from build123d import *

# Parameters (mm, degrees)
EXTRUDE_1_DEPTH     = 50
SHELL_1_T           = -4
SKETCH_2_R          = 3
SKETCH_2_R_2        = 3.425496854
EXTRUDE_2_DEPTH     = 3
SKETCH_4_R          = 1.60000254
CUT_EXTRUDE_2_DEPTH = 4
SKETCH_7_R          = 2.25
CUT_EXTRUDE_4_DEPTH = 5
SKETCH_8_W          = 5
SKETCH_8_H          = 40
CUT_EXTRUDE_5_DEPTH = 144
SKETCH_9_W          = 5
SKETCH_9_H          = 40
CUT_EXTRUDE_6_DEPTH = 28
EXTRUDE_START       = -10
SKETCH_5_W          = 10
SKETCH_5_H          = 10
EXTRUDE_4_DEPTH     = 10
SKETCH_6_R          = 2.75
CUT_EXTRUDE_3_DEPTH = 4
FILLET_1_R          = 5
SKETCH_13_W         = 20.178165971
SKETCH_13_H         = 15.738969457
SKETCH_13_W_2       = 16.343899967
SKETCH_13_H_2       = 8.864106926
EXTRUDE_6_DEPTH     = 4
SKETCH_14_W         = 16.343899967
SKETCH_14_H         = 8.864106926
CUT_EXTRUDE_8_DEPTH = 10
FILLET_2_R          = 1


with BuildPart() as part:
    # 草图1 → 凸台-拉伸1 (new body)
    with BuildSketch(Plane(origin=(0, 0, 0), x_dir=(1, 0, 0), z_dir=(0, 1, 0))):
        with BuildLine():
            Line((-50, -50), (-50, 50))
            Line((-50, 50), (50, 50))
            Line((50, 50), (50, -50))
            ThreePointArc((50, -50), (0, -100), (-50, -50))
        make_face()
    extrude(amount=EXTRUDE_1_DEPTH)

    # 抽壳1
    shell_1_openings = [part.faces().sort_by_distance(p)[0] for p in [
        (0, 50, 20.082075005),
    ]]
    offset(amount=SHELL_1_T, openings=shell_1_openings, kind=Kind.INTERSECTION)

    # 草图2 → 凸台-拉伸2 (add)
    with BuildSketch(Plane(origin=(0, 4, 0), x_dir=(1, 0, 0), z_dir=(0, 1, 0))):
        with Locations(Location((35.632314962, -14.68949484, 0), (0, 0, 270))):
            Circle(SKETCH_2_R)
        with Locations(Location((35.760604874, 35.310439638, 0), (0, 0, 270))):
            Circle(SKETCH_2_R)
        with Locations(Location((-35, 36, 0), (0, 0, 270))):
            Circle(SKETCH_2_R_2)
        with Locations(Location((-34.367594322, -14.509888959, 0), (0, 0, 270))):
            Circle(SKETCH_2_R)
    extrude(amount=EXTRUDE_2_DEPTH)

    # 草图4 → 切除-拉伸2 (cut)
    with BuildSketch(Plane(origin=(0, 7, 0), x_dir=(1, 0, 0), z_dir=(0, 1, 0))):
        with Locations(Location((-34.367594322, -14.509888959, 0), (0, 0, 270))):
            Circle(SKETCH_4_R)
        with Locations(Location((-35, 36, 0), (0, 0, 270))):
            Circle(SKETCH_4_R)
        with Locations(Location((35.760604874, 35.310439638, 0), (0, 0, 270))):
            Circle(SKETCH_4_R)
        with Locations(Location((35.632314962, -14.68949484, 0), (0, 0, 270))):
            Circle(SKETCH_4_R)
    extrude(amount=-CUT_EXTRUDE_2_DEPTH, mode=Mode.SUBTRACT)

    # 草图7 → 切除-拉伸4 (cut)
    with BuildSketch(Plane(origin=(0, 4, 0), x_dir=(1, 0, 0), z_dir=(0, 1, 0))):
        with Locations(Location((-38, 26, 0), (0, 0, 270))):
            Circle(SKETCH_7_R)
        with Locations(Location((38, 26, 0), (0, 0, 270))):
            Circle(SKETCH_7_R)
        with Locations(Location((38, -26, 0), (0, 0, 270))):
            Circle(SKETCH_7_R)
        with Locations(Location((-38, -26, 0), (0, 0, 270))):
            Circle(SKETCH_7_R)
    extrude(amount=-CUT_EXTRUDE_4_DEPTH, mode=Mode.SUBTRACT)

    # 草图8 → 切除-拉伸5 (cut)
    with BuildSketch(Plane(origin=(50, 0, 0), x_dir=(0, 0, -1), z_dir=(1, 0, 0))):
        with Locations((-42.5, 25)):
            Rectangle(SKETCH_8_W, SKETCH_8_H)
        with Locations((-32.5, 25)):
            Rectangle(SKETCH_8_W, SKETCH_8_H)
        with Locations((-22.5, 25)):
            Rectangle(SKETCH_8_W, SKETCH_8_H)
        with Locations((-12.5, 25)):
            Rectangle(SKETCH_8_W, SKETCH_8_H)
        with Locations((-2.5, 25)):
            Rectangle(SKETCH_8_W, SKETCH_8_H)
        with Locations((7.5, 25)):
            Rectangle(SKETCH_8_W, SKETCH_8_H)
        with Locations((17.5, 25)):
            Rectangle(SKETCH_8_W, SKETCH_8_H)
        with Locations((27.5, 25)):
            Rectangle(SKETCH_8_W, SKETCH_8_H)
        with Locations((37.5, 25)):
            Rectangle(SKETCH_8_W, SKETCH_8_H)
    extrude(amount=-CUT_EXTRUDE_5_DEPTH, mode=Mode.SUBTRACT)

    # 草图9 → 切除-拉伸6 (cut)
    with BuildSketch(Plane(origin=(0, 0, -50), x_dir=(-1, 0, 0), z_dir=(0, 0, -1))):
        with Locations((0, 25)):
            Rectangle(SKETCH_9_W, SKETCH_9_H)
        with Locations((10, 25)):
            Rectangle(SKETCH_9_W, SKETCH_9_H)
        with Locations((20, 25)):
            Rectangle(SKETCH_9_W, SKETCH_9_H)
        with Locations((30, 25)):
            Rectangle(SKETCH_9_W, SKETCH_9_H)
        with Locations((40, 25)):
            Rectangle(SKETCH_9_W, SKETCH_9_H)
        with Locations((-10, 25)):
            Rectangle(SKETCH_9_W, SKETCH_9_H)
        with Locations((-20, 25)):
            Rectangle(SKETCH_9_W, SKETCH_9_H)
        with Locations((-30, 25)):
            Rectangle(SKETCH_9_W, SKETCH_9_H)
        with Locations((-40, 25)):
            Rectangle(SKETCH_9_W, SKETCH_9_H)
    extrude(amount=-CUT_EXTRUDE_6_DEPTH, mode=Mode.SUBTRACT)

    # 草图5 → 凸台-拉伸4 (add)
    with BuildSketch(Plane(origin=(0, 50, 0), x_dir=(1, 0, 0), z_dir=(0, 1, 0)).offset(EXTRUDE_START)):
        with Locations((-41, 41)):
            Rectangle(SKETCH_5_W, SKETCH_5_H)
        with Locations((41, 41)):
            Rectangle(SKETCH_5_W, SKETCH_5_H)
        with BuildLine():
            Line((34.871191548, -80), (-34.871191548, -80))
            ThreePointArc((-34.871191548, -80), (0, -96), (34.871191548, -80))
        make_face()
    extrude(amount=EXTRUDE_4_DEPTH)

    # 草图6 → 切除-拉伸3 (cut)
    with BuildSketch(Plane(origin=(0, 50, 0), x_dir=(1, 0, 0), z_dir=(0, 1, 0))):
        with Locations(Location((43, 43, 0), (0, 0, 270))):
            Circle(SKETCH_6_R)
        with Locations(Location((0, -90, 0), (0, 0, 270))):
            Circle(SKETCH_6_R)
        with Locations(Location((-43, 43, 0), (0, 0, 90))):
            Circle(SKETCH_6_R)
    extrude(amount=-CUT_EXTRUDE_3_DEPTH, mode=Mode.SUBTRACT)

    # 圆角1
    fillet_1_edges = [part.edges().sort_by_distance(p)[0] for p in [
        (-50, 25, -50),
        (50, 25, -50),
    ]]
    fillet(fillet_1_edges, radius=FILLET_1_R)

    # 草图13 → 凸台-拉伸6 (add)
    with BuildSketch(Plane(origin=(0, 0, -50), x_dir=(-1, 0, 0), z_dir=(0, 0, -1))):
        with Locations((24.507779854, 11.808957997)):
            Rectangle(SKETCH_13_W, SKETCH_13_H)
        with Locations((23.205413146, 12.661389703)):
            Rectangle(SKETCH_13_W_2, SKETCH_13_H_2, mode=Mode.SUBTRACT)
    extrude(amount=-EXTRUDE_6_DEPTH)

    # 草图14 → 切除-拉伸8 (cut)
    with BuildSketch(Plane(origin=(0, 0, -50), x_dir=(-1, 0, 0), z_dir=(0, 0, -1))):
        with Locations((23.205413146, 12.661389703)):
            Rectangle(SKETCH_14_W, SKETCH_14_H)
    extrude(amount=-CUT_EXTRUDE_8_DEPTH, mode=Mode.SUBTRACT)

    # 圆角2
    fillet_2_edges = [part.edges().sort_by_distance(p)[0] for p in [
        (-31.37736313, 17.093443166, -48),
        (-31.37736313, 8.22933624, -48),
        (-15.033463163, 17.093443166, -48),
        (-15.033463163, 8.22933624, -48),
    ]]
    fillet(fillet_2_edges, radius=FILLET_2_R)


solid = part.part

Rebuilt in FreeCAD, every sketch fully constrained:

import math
import FreeCAD as App
import Part
import Sketcher
from FreeCAD import Vector
Q = App.Units.Quantity


def edges_at(feature, points):
    """Names of the edges that pass closest to the given points."""
    edges = feature.Shape.Edges
    near = lambda p: min(range(len(edges)), key=lambda i: edges[i].distToShape(Part.Vertex(*p))[0])
    return sorted({f"Edge{near(p) + 1}" for p in points})


def faces_at(feature, points):
    """Names of the faces that lie closest to the given points."""
    faces = feature.Shape.Faces
    near = lambda p: min(range(len(faces)), key=lambda i: faces[i].distToShape(Part.Vertex(*p))[0])
    return sorted({f"Face{near(p) + 1}" for p in points})

doc = App.newDocument("Part")
body = doc.addObject("PartDesign::Body", "Body")

# Sketch on XZ plane
sketch1 = doc.addObject("Sketcher::SketchObject", "Sketch")
body.addObject(sketch1)
sketch1.AttachmentSupport = (doc.XZ_Plane, [""])
sketch1.MapMode = "FlatFace"
sketch1.addGeometry([
    Part.LineSegment(Vector(-50, -50, 0), Vector(-50, 50, 0)),
    Part.ArcOfCircle(Part.Circle(Vector(0, 50, 0), Vector(0, 0, 1), 50), math.radians(0), math.radians(180)),
    Part.LineSegment(Vector(50, 50, 0), Vector(50, -50, 0)),
    Part.LineSegment(Vector(50, -50, 0), Vector(-50, -50, 0)),
], False)
sketch1.addConstraint([
    Sketcher.Constraint("Tangent", 0, 2, 1, 2),
    Sketcher.Constraint("Tangent", 1, 1, 2, 1),
    Sketcher.Constraint("Coincident", 2, 2, 3, 1),
    Sketcher.Constraint("Coincident", 3, 2, 0, 1),
    Sketcher.Constraint("Vertical", 0),
    Sketcher.Constraint("Vertical", 2),
    Sketcher.Constraint("Horizontal", 3),
    Sketcher.Constraint("Symmetric", 0, 2, 2, 2, -1, 1),
    Sketcher.Constraint("Equal", 3, 0),
    Sketcher.Constraint("Radius", 1, Q("50 mm")),
])
pad1 = doc.addObject("PartDesign::Pad", "Pad")
body.addObject(pad1)
pad1.Profile = sketch1
pad1.Length = 50
pad1.Reversed = True
doc.recompute()

thickness = doc.addObject("PartDesign::Thickness", "Thickness")
body.addObject(thickness)
thickness.Base = (pad1, faces_at(pad1, [(0, 50, 25)]))
thickness.Value = 4
thickness.Reversed = True
thickness.Join = "Intersection"

# Sketch on XZ plane
sketch2 = doc.addObject("Sketcher::SketchObject", "Sketch001")
body.addObject(sketch2)
sketch2.AttachmentSupport = (doc.XZ_Plane, [""])
sketch2.MapMode = "FlatFace"
sketch2.AttachmentOffset = App.Placement(Vector(0, 0, -4), App.Rotation())
sketch2.addGeometry([
    Part.Circle(Vector(35.6, 14.7, 0), Vector(0, 0, 1), 3),
    Part.Circle(Vector(35.8, -35.3, 0), Vector(0, 0, 1), 3),
    Part.Circle(Vector(-35, -36, 0), Vector(0, 0, 1), 3.4),
    Part.Circle(Vector(-34.4, 14.5, 0), Vector(0, 0, 1), 3),
], False)
sketch2.addConstraint([
    Sketcher.Constraint("Equal", 0, 1),
    Sketcher.Constraint("Equal", 1, 3),
    Sketcher.Constraint("Diameter", 0, Q("6 mm")),
    Sketcher.Constraint("DistanceX", 2, 3, -1, 1, Q("35 mm")),
    Sketcher.Constraint("DistanceY", 2, 3, -1, 1, Q("36 mm")),
    Sketcher.Constraint("Diameter", 2, Q("6.850994 mm")),
    Sketcher.Constraint("DistanceX", 3, 3, 1, 3, Q("70.128199 mm")),
    Sketcher.Constraint("DistanceY", 1, 3, -1, 1, Q("35.31044 mm")),
    Sketcher.Constraint("DistanceY", -1, 1, 3, 3, Q("14.509889 mm")),
    Sketcher.Constraint("DistanceX", 0, 3, 1, 3, Q("0.12829 mm")),
    Sketcher.Constraint("DistanceX", -1, 1, 0, 3, Q("35.632315 mm")),
    Sketcher.Constraint("DistanceY", -1, 1, 0, 3, Q("14.689495 mm")),
])
pad2 = doc.addObject("PartDesign::Pad", "Pad001")
body.addObject(pad2)
pad2.Profile = sketch2
pad2.Length = 3
pad2.Reversed = True

# Sketch on XZ plane
sketch3 = doc.addObject("Sketcher::SketchObject", "Sketch002")
body.addObject(sketch3)
sketch3.AttachmentSupport = (doc.XZ_Plane, [""])
sketch3.MapMode = "FlatFace"
sketch3.AttachmentOffset = App.Placement(Vector(0, 0, -7), App.Rotation())
sketch3.addGeometry([
    Part.Circle(Vector(-34.4, 14.5, 0), Vector(0, 0, 1), 1.6),
    Part.Circle(Vector(-35, -36, 0), Vector(0, 0, 1), 1.6),
    Part.Circle(Vector(35.8, -35.3, 0), Vector(0, 0, 1), 1.6),
    Part.Circle(Vector(35.6, 14.7, 0), Vector(0, 0, 1), 1.6),
], False)
sketch3.addConstraint([
    Sketcher.Constraint("Equal", 0, 1),
    Sketcher.Constraint("Equal", 1, 2),
    Sketcher.Constraint("Equal", 2, 3),
    Sketcher.Constraint("DistanceX", 1, 3, -1, 1, Q("35 mm")),
    Sketcher.Constraint("DistanceY", 1, 3, -1, 1, Q("36 mm")),
    Sketcher.Constraint("Diameter", 0, Q("3.200005 mm")),
    Sketcher.Constraint("DistanceX", 0, 3, 2, 3, Q("70.128199 mm")),
    Sketcher.Constraint("DistanceY", -1, 1, 0, 3, Q("14.509889 mm")),
    Sketcher.Constraint("DistanceY", 2, 3, -1, 1, Q("35.31044 mm")),
    Sketcher.Constraint("DistanceX", 3, 3, 2, 3, Q("0.12829 mm")),
    Sketcher.Constraint("DistanceX", 0, 3, -1, 1, Q("34.367594 mm")),
    Sketcher.Constraint("DistanceY", -1, 1, 3, 3, Q("14.689495 mm")),
])
pocket1 = doc.addObject("PartDesign::Pocket", "Pocket")
body.addObject(pocket1)
pocket1.Profile = sketch3
pocket1.Length = 4
pocket1.Reversed = True

# Sketch on XZ plane
sketch4 = doc.addObject("Sketcher::SketchObject", "Sketch003")
body.addObject(sketch4)
sketch4.AttachmentSupport = (doc.XZ_Plane, [""])
sketch4.MapMode = "FlatFace"
sketch4.AttachmentOffset = App.Placement(Vector(0, 0, -4), App.Rotation())
sketch4.addGeometry([
    Part.Circle(Vector(-38, -26, 0), Vector(0, 0, 1), 2.2),
    Part.Circle(Vector(38, -26, 0), Vector(0, 0, 1), 2.2),
    Part.Circle(Vector(38, 26, 0), Vector(0, 0, 1), 2.2),
    Part.Circle(Vector(-38, 26, 0), Vector(0, 0, 1), 2.2),
], False)
sketch4.addConstraint([
    Sketcher.Constraint("Equal", 0, 1),
    Sketcher.Constraint("Equal", 1, 2),
    Sketcher.Constraint("Equal", 2, 3),
    Sketcher.Constraint("Symmetric", 0, 3, 2, 3, -1, 1),
    Sketcher.Constraint("Symmetric", 1, 3, 3, 3, -1, 1),
    Sketcher.Constraint("Symmetric", 0, 3, 1, 3, -2),
    Sketcher.Constraint("Diameter", 0, Q("4.5 mm")),
    Sketcher.Constraint("DistanceX", 0, 3, -1, 1, Q("38 mm")),
    Sketcher.Constraint("DistanceY", 0, 3, -1, 1, Q("26 mm")),
])
pocket2 = doc.addObject("PartDesign::Pocket", "Pocket001")
body.addObject(pocket2)
pocket2.Profile = sketch4
pocket2.Length = 5
pocket2.Reversed = True

# Sketch on YZ plane
sketch5 = doc.addObject("Sketcher::SketchObject", "Sketch004")
body.addObject(sketch5)
sketch5.AttachmentSupport = (doc.YZ_Plane, [""])
sketch5.MapMode = "FlatFace"
sketch5.AttachmentOffset = App.Placement(Vector(0, 0, 50), App.Rotation())
sketch5.addGeometry([
    Part.LineSegment(Vector(45, 45, 0), Vector(5, 45, 0)),  # 0
    Part.LineSegment(Vector(5, 45, 0), Vector(5, 40, 0)),  # 1
    Part.LineSegment(Vector(5, 40, 0), Vector(45, 40, 0)),  # 2
    Part.LineSegment(Vector(45, 40, 0), Vector(45, 45, 0)),  # 3
    Part.LineSegment(Vector(45, 35, 0), Vector(5, 35, 0)),  # 4
    Part.LineSegment(Vector(5, 35, 0), Vector(5, 30, 0)),  # 5
    Part.LineSegment(Vector(5, 30, 0), Vector(45, 30, 0)),  # 6
    Part.LineSegment(Vector(45, 30, 0), Vector(45, 35, 0)),  # 7
    Part.LineSegment(Vector(45, 25, 0), Vector(5, 25, 0)),  # 8
    Part.LineSegment(Vector(5, 25, 0), Vector(5, 20, 0)),  # 9
    Part.LineSegment(Vector(5, 20, 0), Vector(45, 20, 0)),  # 10
    Part.LineSegment(Vector(45, 20, 0), Vector(45, 25, 0)),  # 11
    Part.LineSegment(Vector(45, 15, 0), Vector(5, 15, 0)),  # 12
    Part.LineSegment(Vector(5, 15, 0), Vector(5, 10, 0)),  # 13
    Part.LineSegment(Vector(5, 10, 0), Vector(45, 10, 0)),  # 14
    Part.LineSegment(Vector(45, 10, 0), Vector(45, 15, 0)),  # 15
    Part.LineSegment(Vector(45, 5, 0), Vector(5, 5, 0)),  # 16
    Part.LineSegment(Vector(5, 5, 0), Vector(5, 0, 0)),  # 17
    Part.LineSegment(Vector(5, 0, 0), Vector(45, 0, 0)),  # 18
    Part.LineSegment(Vector(45, 0, 0), Vector(45, 5, 0)),  # 19
    Part.LineSegment(Vector(45, -5, 0), Vector(5, -5, 0)),  # 20
    Part.LineSegment(Vector(5, -5, 0), Vector(5, -10, 0)),  # 21
    Part.LineSegment(Vector(5, -10, 0), Vector(45, -10, 0)),  # 22
    Part.LineSegment(Vector(45, -10, 0), Vector(45, -5, 0)),  # 23
    Part.LineSegment(Vector(45, -15, 0), Vector(5, -15, 0)),  # 24
    Part.LineSegment(Vector(5, -15, 0), Vector(5, -20, 0)),  # 25
    Part.LineSegment(Vector(5, -20, 0), Vector(45, -20, 0)),  # 26
    Part.LineSegment(Vector(45, -20, 0), Vector(45, -15, 0)),  # 27
    Part.LineSegment(Vector(45, -25, 0), Vector(5, -25, 0)),  # 28
    Part.LineSegment(Vector(5, -25, 0), Vector(5, -30, 0)),  # 29
    Part.LineSegment(Vector(5, -30, 0), Vector(45, -30, 0)),  # 30
    Part.LineSegment(Vector(45, -30, 0), Vector(45, -25, 0)),  # 31
    Part.LineSegment(Vector(45, -35, 0), Vector(5, -35, 0)),  # 32
    Part.LineSegment(Vector(5, -35, 0), Vector(5, -40, 0)),  # 33
    Part.LineSegment(Vector(5, -40, 0), Vector(45, -40, 0)),  # 34
    Part.LineSegment(Vector(45, -40, 0), Vector(45, -35, 0)),  # 35
], False)
sketch5.addConstraint([
    Sketcher.Constraint("Coincident", 0, 2, 1, 1),
    Sketcher.Constraint("Coincident", 1, 2, 2, 1),
    Sketcher.Constraint("Coincident", 2, 2, 3, 1),
    Sketcher.Constraint("Coincident", 3, 2, 0, 1),
    Sketcher.Constraint("Coincident", 4, 2, 5, 1),
    Sketcher.Constraint("Coincident", 5, 2, 6, 1),
    Sketcher.Constraint("Coincident", 6, 2, 7, 1),
    Sketcher.Constraint("Coincident", 7, 2, 4, 1),
    Sketcher.Constraint("Coincident", 8, 2, 9, 1),
    Sketcher.Constraint("Coincident", 9, 2, 10, 1),
    Sketcher.Constraint("Coincident", 10, 2, 11, 1),
    Sketcher.Constraint("Coincident", 11, 2, 8, 1),
    Sketcher.Constraint("Coincident", 12, 2, 13, 1),
    Sketcher.Constraint("Coincident", 13, 2, 14, 1),
    Sketcher.Constraint("Coincident", 14, 2, 15, 1),
    Sketcher.Constraint("Coincident", 15, 2, 12, 1),
    Sketcher.Constraint("Coincident", 16, 2, 17, 1),
    Sketcher.Constraint("Coincident", 17, 2, 18, 1),
    Sketcher.Constraint("Coincident", 18, 2, 19, 1),
    Sketcher.Constraint("Coincident", 19, 2, 16, 1),
    Sketcher.Constraint("Coincident", 20, 2, 21, 1),
    Sketcher.Constraint("Coincident", 21, 2, 22, 1),
    Sketcher.Constraint("Coincident", 22, 2, 23, 1),
    Sketcher.Constraint("Coincident", 23, 2, 20, 1),
    Sketcher.Constraint("Coincident", 24, 2, 25, 1),
    Sketcher.Constraint("Coincident", 25, 2, 26, 1),
    Sketcher.Constraint("Coincident", 26, 2, 27, 1),
    Sketcher.Constraint("Coincident", 27, 2, 24, 1),
    Sketcher.Constraint("Coincident", 28, 2, 29, 1),
    Sketcher.Constraint("Coincident", 29, 2, 30, 1),
    Sketcher.Constraint("Coincident", 30, 2, 31, 1),
    Sketcher.Constraint("Coincident", 31, 2, 28, 1),
    Sketcher.Constraint("Coincident", 32, 2, 33, 1),
    Sketcher.Constraint("Coincident", 33, 2, 34, 1),
    Sketcher.Constraint("Coincident", 34, 2, 35, 1),
    Sketcher.Constraint("Coincident", 35, 2, 32, 1),
    Sketcher.Constraint("Horizontal", 0),
    Sketcher.Constraint("Vertical", 1),
    Sketcher.Constraint("Horizontal", 2),
    Sketcher.Constraint("Vertical", 3),
    Sketcher.Constraint("Horizontal", 4),
    Sketcher.Constraint("Vertical", 5),
    Sketcher.Constraint("Horizontal", 6),
    Sketcher.Constraint("Vertical", 7),
    Sketcher.Constraint("Horizontal", 8),
    Sketcher.Constraint("Vertical", 9),
    Sketcher.Constraint("Horizontal", 10),
    Sketcher.Constraint("Vertical", 11),
    Sketcher.Constraint("Horizontal", 12),
    Sketcher.Constraint("Vertical", 13),
    Sketcher.Constraint("Horizontal", 14),
    Sketcher.Constraint("Vertical", 15),
    Sketcher.Constraint("Horizontal", 16),
    Sketcher.Constraint("Vertical", 17),
    Sketcher.Constraint("Horizontal", 18),
    Sketcher.Constraint("Vertical", 19),
    Sketcher.Constraint("Horizontal", 20),
    Sketcher.Constraint("Vertical", 21),
    Sketcher.Constraint("Horizontal", 22),
    Sketcher.Constraint("Vertical", 23),
    Sketcher.Constraint("Horizontal", 24),
    Sketcher.Constraint("Vertical", 25),
    Sketcher.Constraint("Horizontal", 26),
    Sketcher.Constraint("Vertical", 27),
    Sketcher.Constraint("Horizontal", 28),
    Sketcher.Constraint("Vertical", 29),
    Sketcher.Constraint("Horizontal", 30),
    Sketcher.Constraint("Vertical", 31),
    Sketcher.Constraint("Horizontal", 32),
    Sketcher.Constraint("Vertical", 33),
    Sketcher.Constraint("Horizontal", 34),
    Sketcher.Constraint("Vertical", 35),
    Sketcher.Constraint("Symmetric", 16, 2, 20, 2, -1),
    Sketcher.Constraint("Symmetric", 13, 2, 21, 2, -1),
    Sketcher.Constraint("Symmetric", 12, 2, 24, 2, -1),
    Sketcher.Constraint("Symmetric", 9, 2, 25, 2, -1),
    Sketcher.Constraint("Symmetric", 8, 2, 28, 2, -1),
    Sketcher.Constraint("Symmetric", 5, 2, 29, 2, -1),
    Sketcher.Constraint("Symmetric", 4, 2, 32, 2, -1),
    Sketcher.Constraint("Symmetric", 1, 2, 33, 2, -1),
    Sketcher.Constraint("PointOnObject", 17, 2, -1),
    Sketcher.Constraint("Vertical", 3, 2, 6, 2),
    Sketcher.Constraint("Vertical", 7, 2, 10, 2),
    Sketcher.Constraint("Vertical", 11, 2, 14, 2),
    Sketcher.Constraint("Vertical", 15, 2, 18, 2),
    Sketcher.Constraint("Vertical", 19, 2, 22, 2),
    Sketcher.Constraint("Vertical", 23, 2, 26, 2),
    Sketcher.Constraint("Vertical", 27, 2, 30, 2),
    Sketcher.Constraint("Vertical", 31, 2, 34, 2),
    Sketcher.Constraint("Equal", 3, 5),
    Sketcher.Constraint("Equal", 7, 9),
    Sketcher.Constraint("Equal", 11, 13),
    Sketcher.Constraint("Equal", 15, 17),
    Sketcher.Constraint("Equal", 19, 21),
    Sketcher.Constraint("Equal", 23, 25),
    Sketcher.Constraint("Equal", 27, 29),
    Sketcher.Constraint("Equal", 31, 33),
    Sketcher.Constraint("DistanceX", 0, 2, 0, 1, Q("40 mm")),
    Sketcher.Constraint("DistanceY", 1, 2, 1, 1, Q("5 mm")),
    Sketcher.Constraint("DistanceX", -1, 1, 0, 2, Q("5 mm")),
])
pocket3 = doc.addObject("PartDesign::Pocket", "Pocket002")
body.addObject(pocket3)
pocket3.Profile = sketch5
pocket3.Length = 144

# Sketch on XY plane
sketch6 = doc.addObject("Sketcher::SketchObject", "Sketch005")
body.addObject(sketch6)
sketch6.AttachmentSupport = (doc.XY_Plane, [""])
sketch6.MapMode = "FlatFace"
sketch6.AttachmentOffset = App.Placement(Vector(0, 0, -50), App.Rotation())
sketch6.addGeometry([
    Part.LineSegment(Vector(2, 45, 0), Vector(2, 5, 0)),  # 0
    Part.LineSegment(Vector(2, 5, 0), Vector(-2, 5, 0)),  # 1
    Part.LineSegment(Vector(-2, 5, 0), Vector(-2, 45, 0)),  # 2
    Part.LineSegment(Vector(-2, 45, 0), Vector(2, 45, 0)),  # 3
    Part.LineSegment(Vector(-8, 45, 0), Vector(-8, 5, 0)),  # 4
    Part.LineSegment(Vector(-8, 5, 0), Vector(-12, 5, 0)),  # 5
    Part.LineSegment(Vector(-12, 5, 0), Vector(-12, 45, 0)),  # 6
    Part.LineSegment(Vector(-12, 45, 0), Vector(-8, 45, 0)),  # 7
    Part.LineSegment(Vector(-18, 45, 0), Vector(-18, 5, 0)),  # 8
    Part.LineSegment(Vector(-18, 5, 0), Vector(-22, 5, 0)),  # 9
    Part.LineSegment(Vector(-22, 5, 0), Vector(-22, 45, 0)),  # 10
    Part.LineSegment(Vector(-22, 45, 0), Vector(-18, 45, 0)),  # 11
    Part.LineSegment(Vector(-28, 45, 0), Vector(-28, 5, 0)),  # 12
    Part.LineSegment(Vector(-28, 5, 0), Vector(-32, 5, 0)),  # 13
    Part.LineSegment(Vector(-32, 5, 0), Vector(-32, 45, 0)),  # 14
    Part.LineSegment(Vector(-32, 45, 0), Vector(-28, 45, 0)),  # 15
    Part.LineSegment(Vector(-38, 45, 0), Vector(-38, 5, 0)),  # 16
    Part.LineSegment(Vector(-38, 5, 0), Vector(-42, 5, 0)),  # 17
    Part.LineSegment(Vector(-42, 5, 0), Vector(-42, 45, 0)),  # 18
    Part.LineSegment(Vector(-42, 45, 0), Vector(-38, 45, 0)),  # 19
    Part.LineSegment(Vector(12, 45, 0), Vector(12, 5, 0)),  # 20
    Part.LineSegment(Vector(12, 5, 0), Vector(8, 5, 0)),  # 21
    Part.LineSegment(Vector(8, 5, 0), Vector(8, 45, 0)),  # 22
    Part.LineSegment(Vector(8, 45, 0), Vector(12, 45, 0)),  # 23
    Part.LineSegment(Vector(22, 45, 0), Vector(22, 5, 0)),  # 24
    Part.LineSegment(Vector(22, 5, 0), Vector(18, 5, 0)),  # 25
    Part.LineSegment(Vector(18, 5, 0), Vector(18, 45, 0)),  # 26
    Part.LineSegment(Vector(18, 45, 0), Vector(22, 45, 0)),  # 27
    Part.LineSegment(Vector(32, 45, 0), Vector(32, 5, 0)),  # 28
    Part.LineSegment(Vector(32, 5, 0), Vector(28, 5, 0)),  # 29
    Part.LineSegment(Vector(28, 5, 0), Vector(28, 45, 0)),  # 30
    Part.LineSegment(Vector(28, 45, 0), Vector(32, 45, 0)),  # 31
    Part.LineSegment(Vector(42, 45, 0), Vector(42, 5, 0)),  # 32
    Part.LineSegment(Vector(42, 5, 0), Vector(38, 5, 0)),  # 33
    Part.LineSegment(Vector(38, 5, 0), Vector(38, 45, 0)),  # 34
    Part.LineSegment(Vector(38, 45, 0), Vector(42, 45, 0)),  # 35
], False)
sketch6.addConstraint([
    Sketcher.Constraint("Coincident", 0, 2, 1, 1),
    Sketcher.Constraint("Coincident", 1, 2, 2, 1),
    Sketcher.Constraint("Coincident", 2, 2, 3, 1),
    Sketcher.Constraint("Coincident", 3, 2, 0, 1),
    Sketcher.Constraint("Coincident", 4, 2, 5, 1),
    Sketcher.Constraint("Coincident", 5, 2, 6, 1),
    Sketcher.Constraint("Coincident", 6, 2, 7, 1),
    Sketcher.Constraint("Coincident", 7, 2, 4, 1),
    Sketcher.Constraint("Coincident", 8, 2, 9, 1),
    Sketcher.Constraint("Coincident", 9, 2, 10, 1),
    Sketcher.Constraint("Coincident", 10, 2, 11, 1),
    Sketcher.Constraint("Coincident", 11, 2, 8, 1),
    Sketcher.Constraint("Coincident", 12, 2, 13, 1),
    Sketcher.Constraint("Coincident", 13, 2, 14, 1),
    Sketcher.Constraint("Coincident", 14, 2, 15, 1),
    Sketcher.Constraint("Coincident", 15, 2, 12, 1),
    Sketcher.Constraint("Coincident", 16, 2, 17, 1),
    Sketcher.Constraint("Coincident", 17, 2, 18, 1),
    Sketcher.Constraint("Coincident", 18, 2, 19, 1),
    Sketcher.Constraint("Coincident", 19, 2, 16, 1),
    Sketcher.Constraint("Coincident", 20, 2, 21, 1),
    Sketcher.Constraint("Coincident", 21, 2, 22, 1),
    Sketcher.Constraint("Coincident", 22, 2, 23, 1),
    Sketcher.Constraint("Coincident", 23, 2, 20, 1),
    Sketcher.Constraint("Coincident", 24, 2, 25, 1),
    Sketcher.Constraint("Coincident", 25, 2, 26, 1),
    Sketcher.Constraint("Coincident", 26, 2, 27, 1),
    Sketcher.Constraint("Coincident", 27, 2, 24, 1),
    Sketcher.Constraint("Coincident", 28, 2, 29, 1),
    Sketcher.Constraint("Coincident", 29, 2, 30, 1),
    Sketcher.Constraint("Coincident", 30, 2, 31, 1),
    Sketcher.Constraint("Coincident", 31, 2, 28, 1),
    Sketcher.Constraint("Coincident", 32, 2, 33, 1),
    Sketcher.Constraint("Coincident", 33, 2, 34, 1),
    Sketcher.Constraint("Coincident", 34, 2, 35, 1),
    Sketcher.Constraint("Coincident", 35, 2, 32, 1),
    Sketcher.Constraint("Vertical", 0),
    Sketcher.Constraint("Horizontal", 1),
    Sketcher.Constraint("Vertical", 2),
    Sketcher.Constraint("Horizontal", 3),
    Sketcher.Constraint("Vertical", 4),
    Sketcher.Constraint("Horizontal", 5),
    Sketcher.Constraint("Vertical", 6),
    Sketcher.Constraint("Horizontal", 7),
    Sketcher.Constraint("Vertical", 8),
    Sketcher.Constraint("Horizontal", 9),
    Sketcher.Constraint("Vertical", 10),
    Sketcher.Constraint("Horizontal", 11),
    Sketcher.Constraint("Vertical", 12),
    Sketcher.Constraint("Horizontal", 13),
    Sketcher.Constraint("Vertical", 14),
    Sketcher.Constraint("Horizontal", 15),
    Sketcher.Constraint("Vertical", 16),
    Sketcher.Constraint("Horizontal", 17),
    Sketcher.Constraint("Vertical", 18),
    Sketcher.Constraint("Horizontal", 19),
    Sketcher.Constraint("Vertical", 20),
    Sketcher.Constraint("Horizontal", 21),
    Sketcher.Constraint("Vertical", 22),
    Sketcher.Constraint("Horizontal", 23),
    Sketcher.Constraint("Vertical", 24),
    Sketcher.Constraint("Horizontal", 25),
    Sketcher.Constraint("Vertical", 26),
    Sketcher.Constraint("Horizontal", 27),
    Sketcher.Constraint("Vertical", 28),
    Sketcher.Constraint("Horizontal", 29),
    Sketcher.Constraint("Vertical", 30),
    Sketcher.Constraint("Horizontal", 31),
    Sketcher.Constraint("Vertical", 32),
    Sketcher.Constraint("Horizontal", 33),
    Sketcher.Constraint("Vertical", 34),
    Sketcher.Constraint("Horizontal", 35),
    Sketcher.Constraint("Symmetric", 5, 2, 20, 2, -2),
    Sketcher.Constraint("Symmetric", 7, 2, 22, 2, -2),
    Sketcher.Constraint("Symmetric", 9, 2, 24, 2, -2),
    Sketcher.Constraint("Symmetric", 11, 2, 26, 2, -2),
    Sketcher.Constraint("Symmetric", 13, 2, 28, 2, -2),
    Sketcher.Constraint("Symmetric", 15, 2, 30, 2, -2),
    Sketcher.Constraint("Symmetric", 17, 2, 32, 2, -2),
    Sketcher.Constraint("Symmetric", 19, 2, 34, 2, -2),
    Sketcher.Constraint("Horizontal", 1, 2, 4, 2),
    Sketcher.Constraint("Horizontal", 3, 2, 6, 2),
    Sketcher.Constraint("Horizontal", 5, 2, 8, 2),
    Sketcher.Constraint("Horizontal", 7, 2, 10, 2),
    Sketcher.Constraint("Horizontal", 9, 2, 12, 2),
    Sketcher.Constraint("Horizontal", 11, 2, 14, 2),
    Sketcher.Constraint("Horizontal", 13, 2, 16, 2),
    Sketcher.Constraint("Horizontal", 15, 2, 18, 2),
    Sketcher.Constraint("Equal", 3, 5),
    Sketcher.Constraint("Equal", 7, 9),
    Sketcher.Constraint("Equal", 11, 13),
    Sketcher.Constraint("Equal", 15, 17),
    Sketcher.Constraint("DistanceX", 1, 2, 1, 1, Q("5 mm")),
    Sketcher.Constraint("DistanceY", 0, 2, 0, 1, Q("40 mm")),
    Sketcher.Constraint("DistanceY", -1, 1, 0, 2, Q("5 mm")),
    Sketcher.Constraint("DistanceX", 4, 2, 1, 2, Q("5 mm")),
    Sketcher.Constraint("DistanceX", 8, 2, 5, 2, Q("5 mm")),
    Sketcher.Constraint("DistanceX", 12, 2, 9, 2, Q("5 mm")),
    Sketcher.Constraint("DistanceX", 16, 2, 13, 2, Q("5 mm")),
    Sketcher.Constraint("DistanceX", 0, 2, 20, 2, Q("10 mm")),
])
pocket4 = doc.addObject("PartDesign::Pocket", "Pocket003")
body.addObject(pocket4)
pocket4.Profile = sketch6
pocket4.Length = 28
pocket4.Reversed = True

# Sketch on XZ plane
sketch7 = doc.addObject("Sketcher::SketchObject", "Sketch006")
body.addObject(sketch7)
sketch7.AttachmentSupport = (doc.XZ_Plane, [""])
sketch7.MapMode = "FlatFace"
sketch7.AttachmentOffset = App.Placement(Vector(0, 0, -40), App.Rotation())
sketch7.addGeometry([
    Part.LineSegment(Vector(-46, -46, 0), Vector(-46, -36, 0)),  # 0
    Part.LineSegment(Vector(-46, -36, 0), Vector(-36, -36, 0)),  # 1
    Part.LineSegment(Vector(-36, -36, 0), Vector(-36, -46, 0)),  # 2
    Part.LineSegment(Vector(-36, -46, 0), Vector(-46, -46, 0)),  # 3
    Part.LineSegment(Vector(36, -46, 0), Vector(36, -36, 0)),  # 4
    Part.LineSegment(Vector(36, -36, 0), Vector(46, -36, 0)),  # 5
    Part.LineSegment(Vector(46, -36, 0), Vector(46, -46, 0)),  # 6
    Part.LineSegment(Vector(46, -46, 0), Vector(36, -46, 0)),  # 7
    Part.LineSegment(Vector(35, 80, 0), Vector(-35, 80, 0)),  # 8
    Part.ArcOfCircle(Part.Circle(Vector(0, 50, 0), Vector(0, 0, 1), 46), math.radians(41), math.radians(139)),  # 9
], False)
sketch7.addConstraint([
    Sketcher.Constraint("Coincident", 0, 2, 1, 1),
    Sketcher.Constraint("Coincident", 1, 2, 2, 1),
    Sketcher.Constraint("Coincident", 2, 2, 3, 1),
    Sketcher.Constraint("Coincident", 3, 2, 0, 1),
    Sketcher.Constraint("Coincident", 4, 2, 5, 1),
    Sketcher.Constraint("Coincident", 5, 2, 6, 1),
    Sketcher.Constraint("Coincident", 6, 2, 7, 1),
    Sketcher.Constraint("Coincident", 7, 2, 4, 1),
    Sketcher.Constraint("Coincident", 8, 1, 9, 1),
    Sketcher.Constraint("Coincident", 9, 2, 8, 2),
    Sketcher.Constraint("Vertical", 0),
    Sketcher.Constraint("Horizontal", 1),
    Sketcher.Constraint("Vertical", 2),
    Sketcher.Constraint("Horizontal", 3),
    Sketcher.Constraint("Vertical", 4),
    Sketcher.Constraint("Horizontal", 5),
    Sketcher.Constraint("Vertical", 6),
    Sketcher.Constraint("Horizontal", 7),
    Sketcher.Constraint("Horizontal", 8),
    Sketcher.Constraint("Symmetric", 1, 2, 4, 2, -2),
    Sketcher.Constraint("Symmetric", 3, 2, 6, 2, -2),
    Sketcher.Constraint("PointOnObject", 9, 3, -2),
    Sketcher.Constraint("Equal", 7, 0),
    Sketcher.Constraint("Radius", 9, Q("46 mm")),
    Sketcher.Constraint("DistanceX", 1, 1, 1, 2, Q("10 mm")),
    Sketcher.Constraint("DistanceY", -1, 1, 9, 3, Q("50 mm")),
    Sketcher.Constraint("DistanceX", 0, 2, -1, 1, Q("46 mm")),
    Sketcher.Constraint("DistanceY", 0, 2, -1, 1, Q("36 mm")),
    Sketcher.Constraint("DistanceY", -1, 1, 8, 1, Q("80 mm")),
])
pad3 = doc.addObject("PartDesign::Pad", "Pad002")
body.addObject(pad3)
pad3.Profile = sketch7
pad3.Length = 10
pad3.Reversed = True

# Sketch on XZ plane
sketch8 = doc.addObject("Sketcher::SketchObject", "Sketch007")
body.addObject(sketch8)
sketch8.AttachmentSupport = (doc.XZ_Plane, [""])
sketch8.MapMode = "FlatFace"
sketch8.AttachmentOffset = App.Placement(Vector(0, 0, -50), App.Rotation())
sketch8.addGeometry([
    Part.Circle(Vector(43, -43, 0), Vector(0, 0, 1), 2.8),
    Part.Circle(Vector(0, 90, 0), Vector(0, 0, 1), 2.8),
    Part.Circle(Vector(-43, -43, 0), Vector(0, 0, 1), 2.8),
], False)
sketch8.addConstraint([
    Sketcher.Constraint("Equal", 0, 1),
    Sketcher.Constraint("Equal", 1, 2),
    Sketcher.Constraint("Symmetric", 0, 3, 2, 3, -2),
    Sketcher.Constraint("PointOnObject", 1, 3, -2),
    Sketcher.Constraint("Diameter", 0, Q("5.5 mm")),
    Sketcher.Constraint("DistanceX", -1, 1, 0, 3, Q("43 mm")),
    Sketcher.Constraint("DistanceY", 0, 3, -1, 1, Q("43 mm")),
    Sketcher.Constraint("DistanceY", -1, 1, 1, 3, Q("90 mm")),
])
pocket5 = doc.addObject("PartDesign::Pocket", "Pocket004")
body.addObject(pocket5)
pocket5.Profile = sketch8
pocket5.Length = 4
pocket5.Reversed = True
doc.recompute()

fillet = doc.addObject("PartDesign::Fillet", "Fillet")
body.addObject(fillet)
fillet.Base = (pocket5, edges_at(pocket5, [(-50, 25, -50), (50, 25, -50)]))
fillet.Radius = 5

# Sketch on XY plane
sketch9 = doc.addObject("Sketcher::SketchObject", "Sketch008")
body.addObject(sketch9)
sketch9.AttachmentSupport = (doc.XY_Plane, [""])
sketch9.MapMode = "FlatFace"
sketch9.AttachmentOffset = App.Placement(Vector(0, 0, -50), App.Rotation())
sketch9.addGeometry([
    Part.LineSegment(Vector(-14, 20, 0), Vector(-14, 4, 0)),  # 0
    Part.LineSegment(Vector(-14, 4, 0), Vector(-35, 4, 0)),  # 1
    Part.LineSegment(Vector(-35, 4, 0), Vector(-35, 20, 0)),  # 2
    Part.LineSegment(Vector(-35, 20, 0), Vector(-14, 20, 0)),  # 3
    Part.LineSegment(Vector(-31, 8, 0), Vector(-15, 8, 0)),  # 4
    Part.LineSegment(Vector(-15, 8, 0), Vector(-15, 17, 0)),  # 5
    Part.LineSegment(Vector(-15, 17, 0), Vector(-31, 17, 0)),  # 6
    Part.LineSegment(Vector(-31, 17, 0), Vector(-31, 8, 0)),  # 7
], False)
sketch9.addConstraint([
    Sketcher.Constraint("Coincident", 0, 2, 1, 1),
    Sketcher.Constraint("Coincident", 1, 2, 2, 1),
    Sketcher.Constraint("Coincident", 2, 2, 3, 1),
    Sketcher.Constraint("Coincident", 3, 2, 0, 1),
    Sketcher.Constraint("Coincident", 4, 2, 5, 1),
    Sketcher.Constraint("Coincident", 5, 2, 6, 1),
    Sketcher.Constraint("Coincident", 6, 2, 7, 1),
    Sketcher.Constraint("Coincident", 7, 2, 4, 1),
    Sketcher.Constraint("Vertical", 0),
    Sketcher.Constraint("Horizontal", 1),
    Sketcher.Constraint("Vertical", 2),
    Sketcher.Constraint("Horizontal", 3),
    Sketcher.Constraint("Horizontal", 4),
    Sketcher.Constraint("Vertical", 5),
    Sketcher.Constraint("Horizontal", 6),
    Sketcher.Constraint("Vertical", 7),
    Sketcher.Constraint("DistanceX", 4, 1, 4, 2, Q("16.3439 mm")),
    Sketcher.Constraint("DistanceY", 5, 2, 3, 2, Q("2.585 mm")),
    Sketcher.Constraint("DistanceY", 0, 2, 0, 1, Q("15.738969 mm")),
    Sketcher.Constraint("DistanceX", 1, 2, 4, 2, Q("19.5634 mm")),
    Sketcher.Constraint("DistanceX", 1, 2, 1, 1, Q("20.178166 mm")),
    Sketcher.Constraint("DistanceY", 5, 1, 5, 2, Q("8.864107 mm")),
    Sketcher.Constraint("DistanceX", 0, 2, -1, 1, Q("14.418697 mm")),
    Sketcher.Constraint("DistanceY", -1, 1, 0, 2, Q("3.939473 mm")),
])
pad4 = doc.addObject("PartDesign::Pad", "Pad003")
body.addObject(pad4)
pad4.Profile = sketch9
pad4.Length = 4

# Sketch on XY plane
sketch10 = doc.addObject("Sketcher::SketchObject", "Sketch009")
body.addObject(sketch10)
sketch10.AttachmentSupport = (doc.XY_Plane, [""])
sketch10.MapMode = "FlatFace"
sketch10.AttachmentOffset = App.Placement(Vector(0, 0, -50), App.Rotation())
sketch10.addGeometry([
    Part.LineSegment(Vector(-15, 17, 0), Vector(-15, 8, 0)),
    Part.LineSegment(Vector(-15, 8, 0), Vector(-31, 8, 0)),
    Part.LineSegment(Vector(-31, 8, 0), Vector(-31, 17, 0)),
    Part.LineSegment(Vector(-31, 17, 0), Vector(-15, 17, 0)),
], False)
sketch10.addConstraint([
    Sketcher.Constraint("Coincident", 0, 2, 1, 1),
    Sketcher.Constraint("Coincident", 1, 2, 2, 1),
    Sketcher.Constraint("Coincident", 2, 2, 3, 1),
    Sketcher.Constraint("Coincident", 3, 2, 0, 1),
    Sketcher.Constraint("Vertical", 0),
    Sketcher.Constraint("Horizontal", 1),
    Sketcher.Constraint("Vertical", 2),
    Sketcher.Constraint("Horizontal", 3),
    Sketcher.Constraint("DistanceX", 1, 2, 1, 1, Q("16.3439 mm")),
    Sketcher.Constraint("DistanceY", 0, 2, 0, 1, Q("8.864107 mm")),
    Sketcher.Constraint("DistanceX", 0, 2, -1, 1, Q("15.033463 mm")),
    Sketcher.Constraint("DistanceY", -1, 1, 0, 2, Q("8.229336 mm")),
])
pocket6 = doc.addObject("PartDesign::Pocket", "Pocket005")
body.addObject(pocket6)
pocket6.Profile = sketch10
pocket6.Length = 10
pocket6.Reversed = True
doc.recompute()

fillet2 = doc.addObject("PartDesign::Fillet", "Fillet001")
body.addObject(fillet2)
fillet2.Base = (pocket6, edges_at(pocket6, [
    (-31.377, 17.093, -48),
    (-31.377, 8.229, -48),
    (-15.033, 17.093, -48),
    (-15.033, 8.229, -48),
]))
fillet2.Radius = 1

doc.recompute()
